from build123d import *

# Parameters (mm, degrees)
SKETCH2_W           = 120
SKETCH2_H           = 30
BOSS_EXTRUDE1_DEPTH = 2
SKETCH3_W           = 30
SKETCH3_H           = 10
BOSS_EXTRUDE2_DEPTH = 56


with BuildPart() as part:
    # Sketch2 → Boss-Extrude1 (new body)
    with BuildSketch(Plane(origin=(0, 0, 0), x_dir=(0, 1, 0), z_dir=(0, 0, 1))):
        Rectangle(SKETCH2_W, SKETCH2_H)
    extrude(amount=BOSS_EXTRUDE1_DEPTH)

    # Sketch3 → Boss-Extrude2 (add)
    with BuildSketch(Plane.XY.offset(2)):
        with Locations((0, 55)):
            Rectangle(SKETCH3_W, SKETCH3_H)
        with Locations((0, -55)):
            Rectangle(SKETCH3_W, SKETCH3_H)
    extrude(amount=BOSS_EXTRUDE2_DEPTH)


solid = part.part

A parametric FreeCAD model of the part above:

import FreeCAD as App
import Part
import Sketcher

V = App.Vector
Q = App.Units.Quantity

doc = App.newDocument("Part")
body = doc.addObject("PartDesign::Body", "Body")

sketch1 = body.newObject("Sketcher::SketchObject", "Sketch")
sketch1.AttachmentSupport = (doc.getObject("XY_Plane"), [""])
sketch1.MapMode = "FlatFace"
sketch1.addGeometry(Part.LineSegment(V(-15, -60, 0), V(15, -60, 0)), False)
sketch1.addGeometry(Part.LineSegment(V(15, -60, 0), V(15, 60, 0)), False)
sketch1.addGeometry(Part.LineSegment(V(15, 60, 0), V(-15, 60, 0)), False)
sketch1.addGeometry(Part.LineSegment(V(-15, 60, 0), V(-15, -60, 0)), False)
sketch1.addConstraint(Sketcher.Constraint("Coincident", 0, 2, 1, 1))
sketch1.addConstraint(Sketcher.Constraint("Coincident", 1, 2, 2, 1))
sketch1.addConstraint(Sketcher.Constraint("Coincident", 2, 2, 3, 1))
sketch1.addConstraint(Sketcher.Constraint("Coincident", 3, 2, 0, 1))
sketch1.addConstraint(Sketcher.Constraint("Horizontal", 0))
sketch1.addConstraint(Sketcher.Constraint("Vertical", 1))
sketch1.addConstraint(Sketcher.Constraint("Horizontal", 2))
sketch1.addConstraint(Sketcher.Constraint("Vertical", 3))
sketch1.addConstraint(Sketcher.Constraint("Symmetric", 0, 2, 2, 2, -1, 1))
sketch1.addConstraint(Sketcher.Constraint("DistanceX", 0, 1, 0, 2, Q("30 mm")))
sketch1.addConstraint(Sketcher.Constraint("DistanceY", 1, 1, 1, 2, Q("120 mm")))
pad1 = body.newObject("PartDesign::Pad", "Pad")
pad1.Profile = sketch1
pad1.Length = 2

sketch2 = body.newObject("Sketcher::SketchObject", "Sketch001")
sketch2.AttachmentSupport = (doc.getObject("XY_Plane"), [""])
sketch2.MapMode = "FlatFace"
sketch2.AttachmentOffset = App.Placement(V(0, 0, 2), App.Rotation())
sketch2.addGeometry(Part.LineSegment(V(-15, 60, 0), V(-15, 50, 0)), False)
sketch2.addGeometry(Part.LineSegment(V(-15, 50, 0), V(15, 50, 0)), False)
sketch2.addGeometry(Part.LineSegment(V(15, 50, 0), V(15, 60, 0)), False)
sketch2.addGeometry(Part.LineSegment(V(15, 60, 0), V(-15, 60, 0)), False)
sketch2.addGeometry(Part.LineSegment(V(-15, -50, 0), V(-15, -60, 0)), False)
sketch2.addGeometry(Part.LineSegment(V(-15, -60, 0), V(15, -60, 0)), False)
sketch2.addGeometry(Part.LineSegment(V(15, -60, 0), V(15, -50, 0)), False)
sketch2.addGeometry(Part.LineSegment(V(15, -50, 0), V(-15, -50, 0)), False)
sketch2.addConstraint(Sketcher.Constraint("Coincident", 0, 2, 1, 1))
sketch2.addConstraint(Sketcher.Constraint("Coincident", 1, 2, 2, 1))
sketch2.addConstraint(Sketcher.Constraint("Coincident", 2, 2, 3, 1))
sketch2.addConstraint(Sketcher.Constraint("Coincident", 3, 2, 0, 1))
sketch2.addConstraint(Sketcher.Constraint("Coincident", 4, 2, 5, 1))
sketch2.addConstraint(Sketcher.Constraint("Coincident", 5, 2, 6, 1))
sketch2.addConstraint(Sketcher.Constraint("Coincident", 6, 2, 7, 1))
sketch2.addConstraint(Sketcher.Constraint("Coincident", 7, 2, 4, 1))
sketch2.addConstraint(Sketcher.Constraint("Vertical", 0))
sketch2.addConstraint(Sketcher.Constraint("Horizontal", 1))
sketch2.addConstraint(Sketcher.Constraint("Vertical", 2))
sketch2.addConstraint(Sketcher.Constraint("Horizontal", 3))
sketch2.addConstraint(Sketcher.Constraint("Vertical", 4))
sketch2.addConstraint(Sketcher.Constraint("Horizontal", 5))
sketch2.addConstraint(Sketcher.Constraint("Vertical", 6))
sketch2.addConstraint(Sketcher.Constraint("Horizontal", 7))
sketch2.addConstraint(Sketcher.Constraint("Symmetric", 2, 2, 4, 2, -1, 1))
sketch2.addConstraint(Sketcher.Constraint("Symmetric", 0, 2, 6, 2, -1, 1))
sketch2.addConstraint(Sketcher.Constraint("Vertical", 3, 2, 4, 2))
sketch2.addConstraint(Sketcher.Constraint("DistanceX", 1, 1, 1, 2, Q("30 mm")))
sketch2.addConstraint(Sketcher.Constraint("DistanceY", 0, 2, 0, 1, Q("10 mm")))
sketch2.addConstraint(Sketcher.Constraint("DistanceY", -1, 1, 0, 2, Q("50 mm")))
pad2 = body.newObject("PartDesign::Pad", "Pad001")
pad2.Profile = sketch2
pad2.Length = 56

doc.recompute()
